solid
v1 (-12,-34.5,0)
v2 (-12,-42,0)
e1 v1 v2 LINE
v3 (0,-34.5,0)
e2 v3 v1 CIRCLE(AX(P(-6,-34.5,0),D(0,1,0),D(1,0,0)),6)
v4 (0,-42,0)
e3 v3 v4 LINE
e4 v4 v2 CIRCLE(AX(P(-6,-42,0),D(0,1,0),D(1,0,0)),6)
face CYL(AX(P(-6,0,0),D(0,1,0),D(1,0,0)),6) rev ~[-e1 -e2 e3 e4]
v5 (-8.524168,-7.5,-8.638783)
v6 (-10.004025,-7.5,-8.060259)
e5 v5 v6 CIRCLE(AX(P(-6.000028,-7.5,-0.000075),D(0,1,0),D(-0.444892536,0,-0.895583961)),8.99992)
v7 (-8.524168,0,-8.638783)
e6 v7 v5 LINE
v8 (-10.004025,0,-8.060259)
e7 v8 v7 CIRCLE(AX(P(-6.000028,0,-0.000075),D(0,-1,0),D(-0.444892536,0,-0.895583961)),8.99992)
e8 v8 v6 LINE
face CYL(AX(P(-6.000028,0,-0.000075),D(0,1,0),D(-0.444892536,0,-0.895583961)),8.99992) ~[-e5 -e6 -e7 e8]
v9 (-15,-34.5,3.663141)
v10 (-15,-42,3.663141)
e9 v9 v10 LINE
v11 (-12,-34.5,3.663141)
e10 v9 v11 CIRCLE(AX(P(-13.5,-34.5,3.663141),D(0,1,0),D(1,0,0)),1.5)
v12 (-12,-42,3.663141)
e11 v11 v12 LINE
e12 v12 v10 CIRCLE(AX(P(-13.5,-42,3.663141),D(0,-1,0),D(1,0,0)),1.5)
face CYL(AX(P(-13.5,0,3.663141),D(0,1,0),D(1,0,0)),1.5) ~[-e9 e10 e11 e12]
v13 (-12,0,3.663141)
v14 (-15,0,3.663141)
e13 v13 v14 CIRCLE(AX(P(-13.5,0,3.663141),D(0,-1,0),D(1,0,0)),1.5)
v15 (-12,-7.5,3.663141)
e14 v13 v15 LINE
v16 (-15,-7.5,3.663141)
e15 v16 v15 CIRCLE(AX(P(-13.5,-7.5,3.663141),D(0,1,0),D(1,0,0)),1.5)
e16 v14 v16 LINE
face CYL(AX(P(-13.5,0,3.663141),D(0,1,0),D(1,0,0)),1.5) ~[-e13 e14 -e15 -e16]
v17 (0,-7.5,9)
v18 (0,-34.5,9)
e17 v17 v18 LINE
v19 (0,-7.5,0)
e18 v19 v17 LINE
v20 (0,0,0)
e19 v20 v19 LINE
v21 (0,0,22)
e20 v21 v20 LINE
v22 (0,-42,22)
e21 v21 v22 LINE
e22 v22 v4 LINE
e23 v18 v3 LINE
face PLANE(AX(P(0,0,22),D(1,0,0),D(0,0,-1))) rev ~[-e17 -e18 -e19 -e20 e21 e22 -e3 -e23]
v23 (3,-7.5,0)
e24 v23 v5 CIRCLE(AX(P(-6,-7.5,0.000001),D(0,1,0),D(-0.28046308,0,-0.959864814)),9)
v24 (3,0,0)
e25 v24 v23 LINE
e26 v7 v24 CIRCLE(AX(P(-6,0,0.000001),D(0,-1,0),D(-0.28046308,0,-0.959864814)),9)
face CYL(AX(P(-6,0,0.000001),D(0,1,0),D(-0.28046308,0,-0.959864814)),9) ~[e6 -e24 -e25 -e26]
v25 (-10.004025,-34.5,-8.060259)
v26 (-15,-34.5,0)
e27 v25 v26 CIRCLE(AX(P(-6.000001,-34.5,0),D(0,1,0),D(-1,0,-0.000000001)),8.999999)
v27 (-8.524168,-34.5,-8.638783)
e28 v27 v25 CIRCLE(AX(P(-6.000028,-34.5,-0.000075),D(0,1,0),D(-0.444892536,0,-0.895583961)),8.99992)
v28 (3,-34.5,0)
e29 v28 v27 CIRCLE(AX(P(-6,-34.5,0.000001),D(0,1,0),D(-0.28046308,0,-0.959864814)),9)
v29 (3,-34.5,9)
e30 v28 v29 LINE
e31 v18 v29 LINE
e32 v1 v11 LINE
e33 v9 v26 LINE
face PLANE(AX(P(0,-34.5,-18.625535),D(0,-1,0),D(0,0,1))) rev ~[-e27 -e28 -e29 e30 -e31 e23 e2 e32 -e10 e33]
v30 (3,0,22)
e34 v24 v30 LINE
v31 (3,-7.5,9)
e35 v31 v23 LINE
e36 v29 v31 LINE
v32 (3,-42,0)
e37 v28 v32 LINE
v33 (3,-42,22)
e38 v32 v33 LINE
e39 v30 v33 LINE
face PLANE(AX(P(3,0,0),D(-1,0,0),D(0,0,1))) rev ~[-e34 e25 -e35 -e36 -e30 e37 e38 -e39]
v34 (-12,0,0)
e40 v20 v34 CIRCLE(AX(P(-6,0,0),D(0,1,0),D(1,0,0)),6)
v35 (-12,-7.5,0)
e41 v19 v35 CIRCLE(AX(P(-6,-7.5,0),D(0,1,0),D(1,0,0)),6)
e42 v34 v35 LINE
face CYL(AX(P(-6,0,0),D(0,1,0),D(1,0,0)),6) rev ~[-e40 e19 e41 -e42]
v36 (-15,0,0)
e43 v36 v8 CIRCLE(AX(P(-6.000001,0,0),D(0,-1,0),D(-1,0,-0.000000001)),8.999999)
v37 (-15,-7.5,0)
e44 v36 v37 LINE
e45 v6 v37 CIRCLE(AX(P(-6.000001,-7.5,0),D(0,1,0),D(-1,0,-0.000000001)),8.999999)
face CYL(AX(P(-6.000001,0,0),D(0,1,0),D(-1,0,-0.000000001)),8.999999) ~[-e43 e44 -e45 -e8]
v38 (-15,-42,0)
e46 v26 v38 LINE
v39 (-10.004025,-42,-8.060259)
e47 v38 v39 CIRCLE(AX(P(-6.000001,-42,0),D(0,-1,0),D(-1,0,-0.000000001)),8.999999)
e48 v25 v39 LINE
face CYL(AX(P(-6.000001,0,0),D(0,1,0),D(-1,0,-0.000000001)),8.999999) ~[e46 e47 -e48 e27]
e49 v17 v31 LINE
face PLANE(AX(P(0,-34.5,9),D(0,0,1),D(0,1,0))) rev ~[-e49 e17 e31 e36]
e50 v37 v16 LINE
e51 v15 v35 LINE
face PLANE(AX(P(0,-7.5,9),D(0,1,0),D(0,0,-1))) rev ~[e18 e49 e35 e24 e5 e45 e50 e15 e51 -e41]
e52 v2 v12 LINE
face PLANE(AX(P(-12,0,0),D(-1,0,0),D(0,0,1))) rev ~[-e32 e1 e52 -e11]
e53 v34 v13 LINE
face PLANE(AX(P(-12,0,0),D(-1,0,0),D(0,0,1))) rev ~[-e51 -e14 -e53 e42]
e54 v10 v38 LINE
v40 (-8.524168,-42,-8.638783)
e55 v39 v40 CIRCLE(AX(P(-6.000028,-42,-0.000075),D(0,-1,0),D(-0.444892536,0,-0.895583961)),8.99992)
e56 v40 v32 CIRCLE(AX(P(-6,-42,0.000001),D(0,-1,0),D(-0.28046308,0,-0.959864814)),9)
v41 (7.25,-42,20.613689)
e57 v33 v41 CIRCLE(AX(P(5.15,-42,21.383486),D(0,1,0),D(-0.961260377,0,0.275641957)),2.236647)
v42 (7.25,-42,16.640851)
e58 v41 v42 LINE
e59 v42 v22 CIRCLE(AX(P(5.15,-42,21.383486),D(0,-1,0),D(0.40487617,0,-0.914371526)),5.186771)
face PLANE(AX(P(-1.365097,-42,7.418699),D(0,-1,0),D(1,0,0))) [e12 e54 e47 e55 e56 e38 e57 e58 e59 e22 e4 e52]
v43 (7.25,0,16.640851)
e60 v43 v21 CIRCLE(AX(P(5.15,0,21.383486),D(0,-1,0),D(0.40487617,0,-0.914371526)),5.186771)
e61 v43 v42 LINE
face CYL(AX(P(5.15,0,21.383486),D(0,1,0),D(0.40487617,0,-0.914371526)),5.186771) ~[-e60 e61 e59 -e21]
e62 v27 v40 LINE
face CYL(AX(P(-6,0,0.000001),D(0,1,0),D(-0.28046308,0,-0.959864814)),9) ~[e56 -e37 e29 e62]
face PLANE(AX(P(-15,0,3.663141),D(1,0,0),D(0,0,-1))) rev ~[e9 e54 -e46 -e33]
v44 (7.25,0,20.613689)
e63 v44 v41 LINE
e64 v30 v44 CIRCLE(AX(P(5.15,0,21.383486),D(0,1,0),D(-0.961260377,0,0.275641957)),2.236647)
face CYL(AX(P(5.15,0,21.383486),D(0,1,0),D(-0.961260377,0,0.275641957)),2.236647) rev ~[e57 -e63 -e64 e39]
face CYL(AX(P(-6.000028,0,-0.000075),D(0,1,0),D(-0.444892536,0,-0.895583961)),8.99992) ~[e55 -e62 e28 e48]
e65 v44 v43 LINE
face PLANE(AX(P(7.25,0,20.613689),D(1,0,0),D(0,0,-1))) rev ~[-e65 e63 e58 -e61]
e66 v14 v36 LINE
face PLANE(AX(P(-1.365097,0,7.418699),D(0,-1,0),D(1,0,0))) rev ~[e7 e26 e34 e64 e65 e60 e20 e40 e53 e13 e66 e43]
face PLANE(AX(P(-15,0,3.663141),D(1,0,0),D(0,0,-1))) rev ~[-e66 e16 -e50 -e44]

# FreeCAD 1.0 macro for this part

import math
import FreeCAD as App
import Part
import Sketcher
Q = App.Units.Quantity

doc = App.newDocument("Part")
body = doc.addObject("PartDesign::Body", "Body")

sketch1 = body.newObject("Sketcher::SketchObject", "Sketch")
sketch1.AttachmentSupport = (doc.getObject("XZ_Plane"), [""])
sketch1.MapMode = "FlatFace"
sketch1.addGeometry([
    Part.LineSegment(App.Vector(0, 22, 0), App.Vector(0, 0, 0)),
    Part.ArcOfCircle(Part.Circle(App.Vector(-6, 0, 0), App.Vector(0, 0, 1), 6), math.radians(180), math.radians(360)),
    Part.LineSegment(App.Vector(-12, 0, 0), App.Vector(-12, 3.663141, 0)),
    Part.ArcOfCircle(Part.Circle(App.Vector(-13.5, 3.663141, 0), App.Vector(0, 0, 1), 1.5), math.radians(0), math.radians(180)),
    Part.LineSegment(App.Vector(-15, 3.663141, 0), App.Vector(-15, 0, 0)),
    Part.ArcOfCircle(Part.Circle(App.Vector(-6.000001, 0, 0), App.Vector(0, 0, 1), 8.999999), math.radians(-180), math.radians(-116.416404)),
    Part.ArcOfCircle(Part.Circle(App.Vector(-6.000028, -0.000075, 0), App.Vector(0, 0, 1), 8.99992), math.radians(-116.416463), math.radians(-106.287811)),
    Part.ArcOfCircle(Part.Circle(App.Vector(-6, 0.000001, 0), App.Vector(0, 0, 1), 9), math.radians(-106.287845), math.radians(-0.000003)),
    Part.LineSegment(App.Vector(3, 0, 0), App.Vector(3, 22, 0)),
    Part.ArcOfCircle(Part.Circle(App.Vector(5.15, 21.383486, 0), App.Vector(0, 0, 1), 2.236647), math.radians(-20.131428), math.radians(163.999726)),
    Part.LineSegment(App.Vector(7.25, 20.613689, 0), App.Vector(7.25, 16.640851, 0)),
    Part.ArcOfCircle(Part.Circle(App.Vector(5.15, 21.383486, 0), App.Vector(0, 0, 1), 5.186771), math.radians(-66.116632), math.radians(173.17353)),
], False)
sketch1.addConstraint([
    Sketcher.Constraint("Coincident", 0, 2, 1, 2),
    Sketcher.Constraint("Coincident", 1, 1, 2, 1),
    Sketcher.Constraint("Coincident", 2, 2, 3, 1),
    Sketcher.Constraint("Coincident", 3, 2, 4, 1),
    Sketcher.Constraint("Coincident", 4, 2, 5, 1),
    Sketcher.Constraint("Coincident", 5, 2, 6, 1),
    Sketcher.Constraint("Coincident", 6, 2, 7, 1),
    Sketcher.Constraint("Coincident", 7, 2, 8, 1),
    Sketcher.Constraint("Coincident", 8, 2, 9, 2),
    Sketcher.Constraint("Coincident", 9, 1, 10, 1),
    Sketcher.Constraint("Coincident", 10, 2, 11, 1),
    Sketcher.Constraint("Coincident", 11, 2, 0, 1),
    Sketcher.Constraint("Vertical", 0),
    Sketcher.Constraint("Vertical", 2),
    Sketcher.Constraint("Vertical", 4),
    Sketcher.Constraint("Vertical", 8),
    Sketcher.Constraint("Vertical", 10),
    Sketcher.Constraint("Coincident", 0, 2, -1, 1),
    Sketcher.Constraint("Coincident", 5, 3, 1, 3),
    Sketcher.Constraint("Coincident", 7, 3, 1, 3),
    Sketcher.Constraint("Coincident", 11, 3, 9, 3),
    Sketcher.Constraint("PointOnObject", 1, 3, -1),
    Sketcher.Constraint("PointOnObject", 1, 1, -1),
    Sketcher.Constraint("PointOnObject", 4, 2, -1),
    Sketcher.Constraint("PointOnObject", 7, 2, -1),
    Sketcher.Constraint("Radius", 1, Q("6 mm")),
    Sketcher.Constraint("Radius", 5, Q("8.999999 mm")),
    Sketcher.Constraint("Radius", 7, Q("9 mm")),
    Sketcher.Constraint("DistanceY", 0, 2, 0, 1, Q("22 mm")),
    Sketcher.Constraint("DistanceY", 8, 1, 8, 2, Q("22 mm")),
    Sketcher.Constraint("DistanceX", 11, 3, 9, 1, Q("2.1 mm")),
    Sketcher.Constraint("DistanceX", -1, 1, 9, 3, Q("5.15 mm")),
    Sketcher.Constraint("Radius", 6, Q("8.99992 mm")),
    Sketcher.Constraint("Radius", 11, Q("5.186771 mm")),
    Sketcher.Constraint("DistanceY", 2, 1, 2, 2, Q("3.663141 mm")),
    Sketcher.Constraint("DistanceY", 4, 2, 4, 1, Q("3.663141 mm")),
    Sketcher.Constraint("DistanceY", -1, 1, 3, 3, Q("3.663141 mm")),
    Sketcher.Constraint("DistanceY", 5, 2, -1, 1, Q("8.060259 mm")),
    Sketcher.Constraint("DistanceX", 6, 2, -1, 1, Q("8.524168 mm")),
])
pad1 = body.newObject("PartDesign::Pad", "Pad")
pad1.Profile = sketch1
pad1.Length = 42

sketch2 = body.newObject("Sketcher::SketchObject", "Sketch001")
sketch2.AttachmentSupport = (doc.getObject("YZ_Plane"), [""])
sketch2.MapMode = "FlatFace"
sketch2.addGeometry([
    Part.LineSegment(App.Vector(-8, 9, 0), App.Vector(-8, -16, 0)),
    Part.LineSegment(App.Vector(-8, -16, 0), App.Vector(-34, -19, 0)),
    Part.LineSegment(App.Vector(-34, -19, 0), App.Vector(-34, 9, 0)),
    Part.LineSegment(App.Vector(-34, 9, 0), App.Vector(-8, 9, 0)),
], False)
sketch2.addConstraint([
    Sketcher.Constraint("Coincident", 0, 2, 1, 1),
    Sketcher.Constraint("Coincident", 1, 2, 2, 1),
    Sketcher.Constraint("Coincident", 2, 2, 3, 1),
    Sketcher.Constraint("Coincident", 3, 2, 0, 1),
    Sketcher.Constraint("Vertical", 0),
    Sketcher.Constraint("Vertical", 2),
    Sketcher.Constraint("Horizontal", 3),
    Sketcher.Constraint("DistanceX", 3, 1, 3, 2, Q("27 mm")),
    Sketcher.Constraint("DistanceY", -1, 1, 2, 2, Q("9 mm")),
    Sketcher.Constraint("DistanceX", 0, 2, -1, 1, Q("7.5 mm")),
    Sketcher.Constraint("Distance", 1, Q("27.116759 mm")),
    Sketcher.Constraint("DistanceY", 0, 2, 0, 1, Q("25.111853 mm")),
])
pocket1 = body.newObject("PartDesign::Pocket", "Pocket")
pocket1.Profile = sketch2
pocket1.Length = 33
pocket1.Midplane = True

doc.recompute()
